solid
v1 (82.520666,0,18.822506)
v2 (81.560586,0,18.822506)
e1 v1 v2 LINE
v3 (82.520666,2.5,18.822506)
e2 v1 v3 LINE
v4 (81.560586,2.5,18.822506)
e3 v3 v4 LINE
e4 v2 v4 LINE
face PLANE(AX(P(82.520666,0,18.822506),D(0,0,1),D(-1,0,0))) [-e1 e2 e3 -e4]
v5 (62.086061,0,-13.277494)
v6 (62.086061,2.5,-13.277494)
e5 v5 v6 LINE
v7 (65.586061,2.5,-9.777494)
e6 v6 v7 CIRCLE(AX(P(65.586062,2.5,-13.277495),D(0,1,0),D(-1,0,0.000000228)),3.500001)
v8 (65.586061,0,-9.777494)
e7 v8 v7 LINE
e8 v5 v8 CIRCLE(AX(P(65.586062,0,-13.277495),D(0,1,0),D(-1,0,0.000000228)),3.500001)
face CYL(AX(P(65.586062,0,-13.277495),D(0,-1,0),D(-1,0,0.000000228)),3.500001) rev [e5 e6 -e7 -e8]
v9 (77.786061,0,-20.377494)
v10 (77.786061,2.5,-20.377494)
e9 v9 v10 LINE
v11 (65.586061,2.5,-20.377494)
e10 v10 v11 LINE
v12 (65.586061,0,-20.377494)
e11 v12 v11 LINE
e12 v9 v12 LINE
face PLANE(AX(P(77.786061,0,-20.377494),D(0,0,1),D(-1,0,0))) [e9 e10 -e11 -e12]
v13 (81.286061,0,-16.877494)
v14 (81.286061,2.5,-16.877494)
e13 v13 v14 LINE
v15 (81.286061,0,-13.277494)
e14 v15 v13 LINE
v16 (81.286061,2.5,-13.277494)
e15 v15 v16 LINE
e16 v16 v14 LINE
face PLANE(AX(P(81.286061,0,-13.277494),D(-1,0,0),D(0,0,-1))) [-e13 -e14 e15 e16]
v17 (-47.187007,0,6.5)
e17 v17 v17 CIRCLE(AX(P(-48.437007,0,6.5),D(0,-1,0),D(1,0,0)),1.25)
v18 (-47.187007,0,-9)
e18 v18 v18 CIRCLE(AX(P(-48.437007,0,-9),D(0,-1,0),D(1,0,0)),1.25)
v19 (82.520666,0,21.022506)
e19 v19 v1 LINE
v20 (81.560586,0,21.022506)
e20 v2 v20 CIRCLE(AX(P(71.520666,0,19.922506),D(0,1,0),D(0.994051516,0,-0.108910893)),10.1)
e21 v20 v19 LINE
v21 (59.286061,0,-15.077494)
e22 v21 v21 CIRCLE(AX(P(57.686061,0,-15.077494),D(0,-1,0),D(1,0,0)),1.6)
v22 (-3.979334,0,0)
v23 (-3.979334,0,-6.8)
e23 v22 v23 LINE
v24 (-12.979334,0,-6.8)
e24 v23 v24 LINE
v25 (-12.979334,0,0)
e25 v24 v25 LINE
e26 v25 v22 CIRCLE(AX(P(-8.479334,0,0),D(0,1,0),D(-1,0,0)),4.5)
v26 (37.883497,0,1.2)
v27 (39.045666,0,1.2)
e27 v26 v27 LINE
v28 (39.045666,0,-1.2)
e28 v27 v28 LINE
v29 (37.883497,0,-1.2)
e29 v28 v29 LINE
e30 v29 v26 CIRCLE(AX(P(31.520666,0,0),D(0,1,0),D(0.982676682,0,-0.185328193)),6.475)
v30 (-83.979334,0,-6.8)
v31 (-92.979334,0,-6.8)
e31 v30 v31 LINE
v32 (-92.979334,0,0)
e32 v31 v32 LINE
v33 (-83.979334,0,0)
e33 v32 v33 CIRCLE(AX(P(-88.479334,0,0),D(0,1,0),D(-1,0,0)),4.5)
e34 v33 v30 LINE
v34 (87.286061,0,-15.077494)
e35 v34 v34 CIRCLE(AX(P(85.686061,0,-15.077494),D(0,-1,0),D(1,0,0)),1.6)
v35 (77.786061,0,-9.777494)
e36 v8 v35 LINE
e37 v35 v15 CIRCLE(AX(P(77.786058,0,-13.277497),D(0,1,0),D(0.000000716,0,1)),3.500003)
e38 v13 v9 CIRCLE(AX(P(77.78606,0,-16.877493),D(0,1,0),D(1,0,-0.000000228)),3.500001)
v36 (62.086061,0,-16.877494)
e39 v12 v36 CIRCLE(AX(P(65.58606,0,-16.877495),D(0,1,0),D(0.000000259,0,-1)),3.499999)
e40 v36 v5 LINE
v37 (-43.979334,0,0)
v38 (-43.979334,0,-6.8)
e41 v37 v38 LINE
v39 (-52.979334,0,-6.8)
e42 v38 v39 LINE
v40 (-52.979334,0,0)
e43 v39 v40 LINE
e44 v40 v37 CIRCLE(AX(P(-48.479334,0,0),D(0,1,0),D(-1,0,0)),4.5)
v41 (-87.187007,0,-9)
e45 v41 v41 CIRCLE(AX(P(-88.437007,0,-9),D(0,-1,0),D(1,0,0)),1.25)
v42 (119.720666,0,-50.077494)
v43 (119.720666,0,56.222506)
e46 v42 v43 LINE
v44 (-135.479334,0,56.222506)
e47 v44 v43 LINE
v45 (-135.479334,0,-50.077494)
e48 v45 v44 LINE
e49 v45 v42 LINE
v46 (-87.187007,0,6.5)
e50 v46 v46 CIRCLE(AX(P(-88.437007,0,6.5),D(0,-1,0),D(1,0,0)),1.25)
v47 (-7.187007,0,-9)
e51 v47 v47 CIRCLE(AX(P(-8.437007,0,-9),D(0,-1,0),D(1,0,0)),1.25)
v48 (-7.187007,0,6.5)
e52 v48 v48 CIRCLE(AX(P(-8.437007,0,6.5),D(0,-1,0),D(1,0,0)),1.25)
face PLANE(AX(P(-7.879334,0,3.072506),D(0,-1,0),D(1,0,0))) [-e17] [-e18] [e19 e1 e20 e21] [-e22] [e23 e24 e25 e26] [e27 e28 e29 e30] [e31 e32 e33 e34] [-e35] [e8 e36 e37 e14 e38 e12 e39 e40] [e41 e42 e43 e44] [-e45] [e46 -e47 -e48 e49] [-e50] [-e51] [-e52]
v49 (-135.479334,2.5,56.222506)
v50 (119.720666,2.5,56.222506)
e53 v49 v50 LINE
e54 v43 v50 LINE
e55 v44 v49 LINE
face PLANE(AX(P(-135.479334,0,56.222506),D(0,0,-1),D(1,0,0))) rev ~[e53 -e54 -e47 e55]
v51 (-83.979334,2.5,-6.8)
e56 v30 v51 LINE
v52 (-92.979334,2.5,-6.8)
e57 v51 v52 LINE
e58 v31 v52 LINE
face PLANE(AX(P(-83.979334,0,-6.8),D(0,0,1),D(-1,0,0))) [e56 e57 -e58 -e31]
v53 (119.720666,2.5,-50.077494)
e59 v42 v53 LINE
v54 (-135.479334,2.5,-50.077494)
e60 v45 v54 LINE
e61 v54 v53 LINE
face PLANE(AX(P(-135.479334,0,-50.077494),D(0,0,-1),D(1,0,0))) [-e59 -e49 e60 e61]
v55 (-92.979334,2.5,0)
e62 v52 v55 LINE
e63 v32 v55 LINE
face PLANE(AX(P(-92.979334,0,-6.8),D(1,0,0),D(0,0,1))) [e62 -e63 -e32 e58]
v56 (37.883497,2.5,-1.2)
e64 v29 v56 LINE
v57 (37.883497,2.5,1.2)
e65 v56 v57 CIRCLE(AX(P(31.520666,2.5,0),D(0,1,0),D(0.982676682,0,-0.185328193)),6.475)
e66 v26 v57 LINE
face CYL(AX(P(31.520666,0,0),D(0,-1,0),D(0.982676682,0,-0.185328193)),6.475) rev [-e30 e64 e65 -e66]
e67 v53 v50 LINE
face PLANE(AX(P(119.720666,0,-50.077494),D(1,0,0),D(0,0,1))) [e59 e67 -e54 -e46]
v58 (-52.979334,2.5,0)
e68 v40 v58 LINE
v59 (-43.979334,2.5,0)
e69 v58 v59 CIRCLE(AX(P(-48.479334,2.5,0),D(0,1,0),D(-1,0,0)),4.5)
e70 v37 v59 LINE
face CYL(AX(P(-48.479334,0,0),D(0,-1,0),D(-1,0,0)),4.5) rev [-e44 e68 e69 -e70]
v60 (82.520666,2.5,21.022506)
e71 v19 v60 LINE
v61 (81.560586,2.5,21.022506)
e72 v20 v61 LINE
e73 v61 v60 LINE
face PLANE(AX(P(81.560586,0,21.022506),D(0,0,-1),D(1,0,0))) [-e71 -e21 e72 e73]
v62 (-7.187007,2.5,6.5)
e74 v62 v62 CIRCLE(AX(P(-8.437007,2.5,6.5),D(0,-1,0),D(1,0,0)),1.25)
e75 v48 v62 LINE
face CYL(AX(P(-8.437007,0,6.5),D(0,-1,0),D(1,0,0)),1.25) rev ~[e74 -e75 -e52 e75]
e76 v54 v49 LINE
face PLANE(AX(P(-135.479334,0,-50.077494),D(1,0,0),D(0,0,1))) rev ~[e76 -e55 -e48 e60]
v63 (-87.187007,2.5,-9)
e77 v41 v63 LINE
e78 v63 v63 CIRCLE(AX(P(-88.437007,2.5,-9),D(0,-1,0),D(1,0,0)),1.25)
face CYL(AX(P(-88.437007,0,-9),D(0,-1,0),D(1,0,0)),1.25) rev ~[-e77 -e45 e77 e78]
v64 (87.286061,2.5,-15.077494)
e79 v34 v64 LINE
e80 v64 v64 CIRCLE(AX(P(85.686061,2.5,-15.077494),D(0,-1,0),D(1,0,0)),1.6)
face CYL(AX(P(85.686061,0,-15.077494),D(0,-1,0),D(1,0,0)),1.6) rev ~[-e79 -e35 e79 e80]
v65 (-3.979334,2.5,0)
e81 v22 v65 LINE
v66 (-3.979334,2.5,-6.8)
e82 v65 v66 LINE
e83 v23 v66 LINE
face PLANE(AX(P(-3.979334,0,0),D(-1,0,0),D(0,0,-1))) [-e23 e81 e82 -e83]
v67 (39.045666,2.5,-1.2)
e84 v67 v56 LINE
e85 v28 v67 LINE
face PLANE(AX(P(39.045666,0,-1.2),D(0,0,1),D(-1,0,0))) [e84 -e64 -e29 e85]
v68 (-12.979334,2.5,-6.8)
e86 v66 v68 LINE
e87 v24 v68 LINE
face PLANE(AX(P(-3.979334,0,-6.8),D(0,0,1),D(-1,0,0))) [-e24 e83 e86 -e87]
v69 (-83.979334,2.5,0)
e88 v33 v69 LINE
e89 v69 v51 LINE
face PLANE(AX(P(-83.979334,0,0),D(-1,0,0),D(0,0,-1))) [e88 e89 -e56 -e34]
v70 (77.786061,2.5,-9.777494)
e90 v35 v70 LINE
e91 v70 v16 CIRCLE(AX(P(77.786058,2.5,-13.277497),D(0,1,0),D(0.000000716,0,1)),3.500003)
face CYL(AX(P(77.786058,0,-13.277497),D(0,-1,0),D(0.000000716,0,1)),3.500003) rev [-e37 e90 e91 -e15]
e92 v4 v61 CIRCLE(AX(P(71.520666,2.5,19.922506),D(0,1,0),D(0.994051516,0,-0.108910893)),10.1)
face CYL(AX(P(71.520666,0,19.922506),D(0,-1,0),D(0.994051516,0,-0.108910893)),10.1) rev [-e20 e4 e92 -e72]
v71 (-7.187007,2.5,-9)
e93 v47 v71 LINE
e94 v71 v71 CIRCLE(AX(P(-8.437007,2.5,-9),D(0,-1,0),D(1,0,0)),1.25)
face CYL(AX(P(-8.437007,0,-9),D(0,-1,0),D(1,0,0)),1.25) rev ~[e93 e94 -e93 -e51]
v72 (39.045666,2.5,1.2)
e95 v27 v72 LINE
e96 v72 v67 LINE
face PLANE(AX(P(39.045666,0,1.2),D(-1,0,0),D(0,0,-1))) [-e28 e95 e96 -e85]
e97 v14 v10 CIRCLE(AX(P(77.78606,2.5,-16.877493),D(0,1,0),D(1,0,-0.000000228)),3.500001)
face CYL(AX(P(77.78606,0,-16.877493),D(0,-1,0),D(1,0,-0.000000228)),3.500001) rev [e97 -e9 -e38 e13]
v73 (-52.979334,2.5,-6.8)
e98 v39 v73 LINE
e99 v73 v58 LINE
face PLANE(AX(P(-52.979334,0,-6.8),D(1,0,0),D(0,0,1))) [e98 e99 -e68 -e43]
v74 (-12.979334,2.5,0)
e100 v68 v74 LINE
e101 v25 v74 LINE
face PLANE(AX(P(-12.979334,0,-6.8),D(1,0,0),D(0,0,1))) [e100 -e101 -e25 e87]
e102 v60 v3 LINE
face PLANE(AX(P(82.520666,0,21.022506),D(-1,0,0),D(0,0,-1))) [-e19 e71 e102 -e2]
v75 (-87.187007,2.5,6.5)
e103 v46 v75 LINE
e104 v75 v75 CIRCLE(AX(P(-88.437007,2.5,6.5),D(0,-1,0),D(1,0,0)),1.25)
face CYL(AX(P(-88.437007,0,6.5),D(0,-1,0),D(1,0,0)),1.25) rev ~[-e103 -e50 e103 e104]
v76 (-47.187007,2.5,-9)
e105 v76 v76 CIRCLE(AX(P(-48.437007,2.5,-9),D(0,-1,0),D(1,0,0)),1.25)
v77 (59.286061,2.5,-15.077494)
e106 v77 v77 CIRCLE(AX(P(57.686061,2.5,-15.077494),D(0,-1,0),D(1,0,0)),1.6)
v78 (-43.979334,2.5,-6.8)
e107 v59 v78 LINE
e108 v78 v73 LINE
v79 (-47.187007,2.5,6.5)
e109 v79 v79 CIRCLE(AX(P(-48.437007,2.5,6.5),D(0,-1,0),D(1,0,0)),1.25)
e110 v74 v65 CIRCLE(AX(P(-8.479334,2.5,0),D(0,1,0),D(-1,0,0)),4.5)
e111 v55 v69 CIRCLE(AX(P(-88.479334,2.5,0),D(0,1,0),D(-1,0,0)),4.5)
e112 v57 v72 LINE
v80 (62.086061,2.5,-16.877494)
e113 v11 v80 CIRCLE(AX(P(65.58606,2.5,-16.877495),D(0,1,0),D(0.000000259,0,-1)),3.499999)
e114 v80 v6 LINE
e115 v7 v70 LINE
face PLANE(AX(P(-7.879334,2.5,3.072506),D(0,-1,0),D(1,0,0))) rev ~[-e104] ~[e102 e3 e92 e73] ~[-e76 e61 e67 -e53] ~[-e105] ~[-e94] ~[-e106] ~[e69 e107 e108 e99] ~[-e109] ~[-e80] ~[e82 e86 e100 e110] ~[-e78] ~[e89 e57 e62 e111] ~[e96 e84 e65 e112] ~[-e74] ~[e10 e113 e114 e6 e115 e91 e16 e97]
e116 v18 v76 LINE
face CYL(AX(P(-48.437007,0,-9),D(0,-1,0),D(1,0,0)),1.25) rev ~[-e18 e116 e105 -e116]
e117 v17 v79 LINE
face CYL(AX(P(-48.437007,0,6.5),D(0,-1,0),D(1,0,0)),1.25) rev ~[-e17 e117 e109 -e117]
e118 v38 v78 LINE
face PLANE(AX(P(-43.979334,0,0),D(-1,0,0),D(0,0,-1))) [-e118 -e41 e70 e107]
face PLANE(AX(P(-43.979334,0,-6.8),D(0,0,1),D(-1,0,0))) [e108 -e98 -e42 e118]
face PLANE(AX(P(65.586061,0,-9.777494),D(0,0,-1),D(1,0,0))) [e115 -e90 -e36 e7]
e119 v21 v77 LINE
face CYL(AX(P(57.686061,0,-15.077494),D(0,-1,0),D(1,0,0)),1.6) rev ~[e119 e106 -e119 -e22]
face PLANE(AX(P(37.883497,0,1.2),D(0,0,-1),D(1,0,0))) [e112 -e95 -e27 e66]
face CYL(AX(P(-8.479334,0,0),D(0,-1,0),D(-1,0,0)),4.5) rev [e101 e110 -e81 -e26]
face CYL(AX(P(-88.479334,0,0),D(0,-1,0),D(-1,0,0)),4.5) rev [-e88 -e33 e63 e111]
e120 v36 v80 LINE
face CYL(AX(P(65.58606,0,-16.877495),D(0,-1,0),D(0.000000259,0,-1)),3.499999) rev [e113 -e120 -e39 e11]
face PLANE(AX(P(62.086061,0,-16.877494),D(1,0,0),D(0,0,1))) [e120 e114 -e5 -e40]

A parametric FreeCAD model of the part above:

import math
import FreeCAD as App
import Part
import Sketcher

V = App.Vector

doc = App.newDocument("Part")
body = doc.addObject("PartDesign::Body", "Body")

# Sketch on XZ plane
sketch1 = body.newObject("Sketcher::SketchObject", "Sketch")
sketch1.AttachmentSupport = (doc.getObject("XZ_Plane"), [""])
sketch1.MapMode = "FlatFace"
sketch1.addGeometry([
    Part.LineSegment(V(-135.479334, 56.222506, 0), V(-135.479334, -50.077494, 0)),  # 0
    Part.LineSegment(V(-135.479334, -50.077494, 0), V(119.720666, -50.077494, 0)),  # 1
    Part.LineSegment(V(119.720666, -50.077494, 0), V(119.720666, 56.222506, 0)),  # 2
    Part.LineSegment(V(119.720666, 56.222506, 0), V(-135.479334, 56.222506, 0)),  # 3
    Part.Circle(V(-88.437007, -9, 0), V(0, 0, 1), 1.25),  # 4
    Part.Circle(V(-48.437007, -9, 0), V(0, 0, 1), 1.25),  # 5
    Part.Circle(V(-8.437007, -9, 0), V(0, 0, 1), 1.25),  # 6
    Part.LineSegment(V(-92.979334, -6.8, 0), V(-92.979334, 0, 0)),  # 7
    Part.ArcOfCircle(Part.Circle(V(-88.479334, 0, 0), V(0, 0, 1), 4.5), math.radians(0), math.radians(180)),  # 8
    Part.LineSegment(V(-83.979334, 0, 0), V(-83.979334, -6.8, 0)),  # 9
    Part.LineSegment(V(-83.979334, -6.8, 0), V(-92.979334, -6.8, 0)),  # 10
    Part.LineSegment(V(-43.979334, -6.8, 0), V(-52.979334, -6.8, 0)),  # 11
    Part.LineSegment(V(-52.979334, -6.8, 0), V(-52.979334, 0, 0)),  # 12
    Part.ArcOfCircle(Part.Circle(V(-48.479334, 0, 0), V(0, 0, 1), 4.5), math.radians(0), math.radians(180)),  # 13
    Part.LineSegment(V(-43.979334, 0, 0), V(-43.979334, -6.8, 0)),  # 14
    Part.LineSegment(V(-3.979334, -6.8, 0), V(-12.979334, -6.8, 0)),  # 15
    Part.LineSegment(V(-12.979334, -6.8, 0), V(-12.979334, 0, 0)),  # 16
    Part.ArcOfCircle(Part.Circle(V(-8.479334, 0, 0), V(0, 0, 1), 4.5), math.radians(0), math.radians(180)),  # 17
    Part.LineSegment(V(-3.979334, 0, 0), V(-3.979334, -6.8, 0)),  # 18
    Part.Circle(V(57.686061, -15.077494, 0), V(0, 0, 1), 1.6),  # 19
    Part.LineSegment(V(81.286061, -13.277494, 0), V(81.286061, -16.877494, 0)),  # 20
    Part.ArcOfCircle(Part.Circle(V(77.78606, -16.877493, 0), V(0, 0, 1), 3.500001), math.radians(-89.999987), math.radians(-0.000013)),  # 21
    Part.LineSegment(V(77.786061, -20.377494, 0), V(65.586061, -20.377494, 0)),  # 22
    Part.ArcOfCircle(Part.Circle(V(65.58606, -16.877495, 0), V(0, 0, 1), 3.499999), math.radians(179.999985), math.radians(270.000015)),  # 23
    Part.LineSegment(V(62.086061, -16.877494, 0), V(62.086061, -13.277494, 0)),  # 24
    Part.ArcOfCircle(Part.Circle(V(65.586062, -13.277495, 0), V(0, 0, 1), 3.500001), math.radians(90.000013), math.radians(179.999987)),  # 25
    Part.LineSegment(V(65.586061, -9.777494, 0), V(77.786061, -9.777494, 0)),  # 26
    Part.ArcOfCircle(Part.Circle(V(77.786058, -13.277497, 0), V(0, 0, 1), 3.500003), math.radians(0.000041), math.radians(89.999959)),  # 27
    Part.Circle(V(85.686061, -15.077494, 0), V(0, 0, 1), 1.6),  # 28
    Part.LineSegment(V(39.045666, -1.2, 0), V(37.883497, -1.2, 0)),  # 29
    Part.ArcOfCircle(Part.Circle(V(31.520666, 0, 0), V(0, 0, 1), 6.475), math.radians(10.680267), math.radians(349.319733)),  # 30
    Part.LineSegment(V(37.883497, 1.2, 0), V(39.045666, 1.2, 0)),  # 31
    Part.LineSegment(V(39.045666, 1.2, 0), V(39.045666, -1.2, 0)),  # 32
    Part.Circle(V(-88.437007, 6.5, 0), V(0, 0, 1), 1.25),  # 33
    Part.Circle(V(-48.437007, 6.5, 0), V(0, 0, 1), 1.25),  # 34
    Part.Circle(V(-8.437007, 6.5, 0), V(0, 0, 1), 1.25),  # 35
    Part.LineSegment(V(82.520666, 18.822506, 0), V(81.560586, 18.822506, 0)),  # 36
    Part.ArcOfCircle(Part.Circle(V(71.520666, 19.922506, 0), V(0, 0, 1), 10.1), math.radians(6.252537), math.radians(353.747463)),  # 37
    Part.LineSegment(V(81.560586, 21.022506, 0), V(82.520666, 21.022506, 0)),  # 38
    Part.LineSegment(V(82.520666, 21.022506, 0), V(82.520666, 18.822506, 0)),  # 39
], False)
sketch1.addConstraint([
    Sketcher.Constraint("Coincident", 0, 2, 1, 1),
    Sketcher.Constraint("Coincident", 1, 2, 2, 1),
    Sketcher.Constraint("Coincident", 2, 2, 3, 1),
    Sketcher.Constraint("Coincident", 3, 2, 0, 1),
    Sketcher.Constraint("Tangent", 7, 2, 8, 2),
    Sketcher.Constraint("Tangent", 8, 1, 9, 1),
    Sketcher.Constraint("Coincident", 9, 2, 10, 1),
    Sketcher.Constraint("Coincident", 10, 2, 7, 1),
    Sketcher.Constraint("Coincident", 11, 2, 12, 1),
    Sketcher.Constraint("Tangent", 12, 2, 13, 2),
    Sketcher.Constraint("Tangent", 13, 1, 14, 1),
    Sketcher.Constraint("Coincident", 14, 2, 11, 1),
    Sketcher.Constraint("Coincident", 15, 2, 16, 1),
    Sketcher.Constraint("Tangent", 16, 2, 17, 2),
    Sketcher.Constraint("Tangent", 17, 1, 18, 1),
    Sketcher.Constraint("Coincident", 18, 2, 15, 1),
    Sketcher.Constraint("Tangent", 20, 2, 21, 2),
    Sketcher.Constraint("Tangent", 21, 1, 22, 1),
    Sketcher.Constraint("Tangent", 22, 2, 23, 2),
    Sketcher.Constraint("Tangent", 23, 1, 24, 1),
    Sketcher.Constraint("Tangent", 24, 2, 25, 2),
    Sketcher.Constraint("Tangent", 25, 1, 26, 1),
    Sketcher.Constraint("Tangent", 26, 2, 27, 2),
    Sketcher.Constraint("Tangent", 27, 1, 20, 1),
    Sketcher.Constraint("Coincident", 29, 2, 30, 2),
    Sketcher.Constraint("Coincident", 30, 1, 31, 1),
    Sketcher.Constraint("Coincident", 31, 2, 32, 1),
    Sketcher.Constraint("Coincident", 32, 2, 29, 1),
    Sketcher.Constraint("Coincident", 36, 2, 37, 2),
    Sketcher.Constraint("Coincident", 37, 1, 38, 1),
    Sketcher.Constraint("Coincident", 38, 2, 39, 1),
    Sketcher.Constraint("Coincident", 39, 2, 36, 1),
    Sketcher.Constraint("Vertical", 0),
    Sketcher.Constraint("Horizontal", 1),
    Sketcher.Constraint("Vertical", 2),
    Sketcher.Constraint("Horizontal", 3),
    Sketcher.Constraint("Vertical", 7),
    Sketcher.Constraint("Vertical", 9),
    Sketcher.Constraint("Horizontal", 10),
    Sketcher.Constraint("Horizontal", 11),
    Sketcher.Constraint("Vertical", 12),
    Sketcher.Constraint("Vertical", 14),
    Sketcher.Constraint("Horizontal", 15),
    Sketcher.Constraint("Vertical", 16),
    Sketcher.Constraint("Vertical", 18),
    Sketcher.Constraint("Vertical", 20),
    Sketcher.Constraint("Horizontal", 22),
    Sketcher.Constraint("Vertical", 24),
    Sketcher.Constraint("Horizontal", 26),
    Sketcher.Constraint("Horizontal", 29),
    Sketcher.Constraint("Horizontal", 31),
    Sketcher.Constraint("Vertical", 32),
    Sketcher.Constraint("Horizontal", 36),
    Sketcher.Constraint("Horizontal", 38),
    Sketcher.Constraint("Vertical", 39),
    Sketcher.Constraint("Equal", 4, 5),
    Sketcher.Constraint("Equal", 5, 6),
    Sketcher.Constraint("Equal", 8, 13),
    Sketcher.Constraint("Equal", 13, 17),
    Sketcher.Constraint("Equal", 21, 23),
    Sketcher.Constraint("Equal", 23, 25),
    Sketcher.Constraint("Equal", 25, 27),
    Sketcher.Constraint("Equal", 19, 28),
    Sketcher.Constraint("Equal", 6, 33),
    Sketcher.Constraint("Equal", 33, 34),
    Sketcher.Constraint("Equal", 34, 35),
    Sketcher.Constraint("Symmetric", 29, 2, 30, 1, -1),
    Sketcher.Constraint("PointOnObject", 8, 3, -1),
    Sketcher.Constraint("PointOnObject", 13, 3, -1),
    Sketcher.Constraint("PointOnObject", 17, 3, -1),
    Sketcher.Constraint("Horizontal", 4, 3, 5, 3),
    Sketcher.Constraint("Horizontal", 5, 3, 6, 3),
    Sketcher.Constraint("Horizontal", 19, 3, 28, 3),
    Sketcher.Constraint("Horizontal", 33, 3, 34, 3),
    Sketcher.Constraint("Horizontal", 34, 3, 35, 3),
    Sketcher.Constraint("Horizontal", 10, 2, 11, 2),
    Sketcher.Constraint("Horizontal", 14, 2, 15, 2),
    Sketcher.Constraint("Vertical", 4, 3, 33, 3),
    Sketcher.Constraint("Vertical", 5, 3, 34, 3),
    Sketcher.Constraint("Vertical", 6, 3, 35, 3),
    Sketcher.Constraint("Vertical", 36, 2, 37, 1),
    Sketcher.Constraint("Diameter", 4, 2.5),
    Sketcher.Constraint("Diameter", 19, 3.2),
    Sketcher.Constraint("Radius", 8, 4.5),
    Sketcher.Constraint("Radius", 21, 3.500001),
    Sketcher.Constraint("Radius", 37, 10.1),
    Sketcher.Constraint("DistanceX", 1, 1, 1, 2, 255.2),
    Sketcher.Constraint("DistanceX", 22, 2, 22, 1, 12.2),
    Sketcher.Constraint("DistanceY", 0, 2, 0, 1, 106.3),
    Sketcher.Constraint("DistanceY", 7, 1, 7, 2, 6.8),
    Sketcher.Constraint("DistanceY", 20, 2, 20, 1, 3.6),
    Sketcher.Constraint("DistanceY", 32, 2, 32, 1, 2.4),
    Sketcher.Constraint("DistanceY", 39, 2, 39, 1, 2.2),
    Sketcher.Constraint("DistanceY", 4, 3, -1, 1, 9.0),
    Sketcher.Constraint("Radius", 30, 6.475),
    Sketcher.Constraint("DistanceX", 4, 3, 5, 3, 40.0),
    Sketcher.Constraint("DistanceX", 5, 3, 6, 3, 40.0),
    Sketcher.Constraint("DistanceX", 8, 3, 13, 3, 40.0),
    Sketcher.Constraint("DistanceX", 13, 3, 17, 3, 40.0),
    Sketcher.Constraint("DistanceX", 19, 3, 28, 3, 28.0),
    Sketcher.Constraint("DistanceX", 17, 3, 30, 3, 40.0),
    Sketcher.Constraint("DistanceY", 19, 3, 37, 3, 35.0),
    Sketcher.Constraint("DistanceX", 0, 2, 8, 3, 47.0),
    Sketcher.Constraint("DistanceY", 1, 2, 28, 3, 35.0),
    Sketcher.Constraint("DistanceX", 37, 3, 38, 2, 11.0),
    Sketcher.Constraint("DistanceY", -1, 1, 33, 3, 6.5),
    Sketcher.Constraint("DistanceX", 19, 3, 21, 3, 20.099999),
    Sketcher.Constraint("DistanceY", 21, 3, 19, 3, 1.799999),
    Sketcher.Constraint("DistanceX", 37, 3, 2, 2, 48.2),
    Sketcher.Constraint("DistanceX", 30, 3, 31, 2, 7.525),
    Sketcher.Constraint("DistanceX", -1, 1, 19, 3, 57.686061),
    Sketcher.Constraint("DistanceX", 6, 3, 19, 3, 66.123068),
    Sketcher.Constraint("DistanceX", 8, 3, -1, 1, 88.479334),
    Sketcher.Constraint("DistanceY", 19, 3, -1, 1, 15.077494),
])
pad1 = body.newObject("PartDesign::Pad", "Pad")
pad1.Profile = sketch1
pad1.Length = 2.5
pad1.Reversed = True

doc.recompute()
